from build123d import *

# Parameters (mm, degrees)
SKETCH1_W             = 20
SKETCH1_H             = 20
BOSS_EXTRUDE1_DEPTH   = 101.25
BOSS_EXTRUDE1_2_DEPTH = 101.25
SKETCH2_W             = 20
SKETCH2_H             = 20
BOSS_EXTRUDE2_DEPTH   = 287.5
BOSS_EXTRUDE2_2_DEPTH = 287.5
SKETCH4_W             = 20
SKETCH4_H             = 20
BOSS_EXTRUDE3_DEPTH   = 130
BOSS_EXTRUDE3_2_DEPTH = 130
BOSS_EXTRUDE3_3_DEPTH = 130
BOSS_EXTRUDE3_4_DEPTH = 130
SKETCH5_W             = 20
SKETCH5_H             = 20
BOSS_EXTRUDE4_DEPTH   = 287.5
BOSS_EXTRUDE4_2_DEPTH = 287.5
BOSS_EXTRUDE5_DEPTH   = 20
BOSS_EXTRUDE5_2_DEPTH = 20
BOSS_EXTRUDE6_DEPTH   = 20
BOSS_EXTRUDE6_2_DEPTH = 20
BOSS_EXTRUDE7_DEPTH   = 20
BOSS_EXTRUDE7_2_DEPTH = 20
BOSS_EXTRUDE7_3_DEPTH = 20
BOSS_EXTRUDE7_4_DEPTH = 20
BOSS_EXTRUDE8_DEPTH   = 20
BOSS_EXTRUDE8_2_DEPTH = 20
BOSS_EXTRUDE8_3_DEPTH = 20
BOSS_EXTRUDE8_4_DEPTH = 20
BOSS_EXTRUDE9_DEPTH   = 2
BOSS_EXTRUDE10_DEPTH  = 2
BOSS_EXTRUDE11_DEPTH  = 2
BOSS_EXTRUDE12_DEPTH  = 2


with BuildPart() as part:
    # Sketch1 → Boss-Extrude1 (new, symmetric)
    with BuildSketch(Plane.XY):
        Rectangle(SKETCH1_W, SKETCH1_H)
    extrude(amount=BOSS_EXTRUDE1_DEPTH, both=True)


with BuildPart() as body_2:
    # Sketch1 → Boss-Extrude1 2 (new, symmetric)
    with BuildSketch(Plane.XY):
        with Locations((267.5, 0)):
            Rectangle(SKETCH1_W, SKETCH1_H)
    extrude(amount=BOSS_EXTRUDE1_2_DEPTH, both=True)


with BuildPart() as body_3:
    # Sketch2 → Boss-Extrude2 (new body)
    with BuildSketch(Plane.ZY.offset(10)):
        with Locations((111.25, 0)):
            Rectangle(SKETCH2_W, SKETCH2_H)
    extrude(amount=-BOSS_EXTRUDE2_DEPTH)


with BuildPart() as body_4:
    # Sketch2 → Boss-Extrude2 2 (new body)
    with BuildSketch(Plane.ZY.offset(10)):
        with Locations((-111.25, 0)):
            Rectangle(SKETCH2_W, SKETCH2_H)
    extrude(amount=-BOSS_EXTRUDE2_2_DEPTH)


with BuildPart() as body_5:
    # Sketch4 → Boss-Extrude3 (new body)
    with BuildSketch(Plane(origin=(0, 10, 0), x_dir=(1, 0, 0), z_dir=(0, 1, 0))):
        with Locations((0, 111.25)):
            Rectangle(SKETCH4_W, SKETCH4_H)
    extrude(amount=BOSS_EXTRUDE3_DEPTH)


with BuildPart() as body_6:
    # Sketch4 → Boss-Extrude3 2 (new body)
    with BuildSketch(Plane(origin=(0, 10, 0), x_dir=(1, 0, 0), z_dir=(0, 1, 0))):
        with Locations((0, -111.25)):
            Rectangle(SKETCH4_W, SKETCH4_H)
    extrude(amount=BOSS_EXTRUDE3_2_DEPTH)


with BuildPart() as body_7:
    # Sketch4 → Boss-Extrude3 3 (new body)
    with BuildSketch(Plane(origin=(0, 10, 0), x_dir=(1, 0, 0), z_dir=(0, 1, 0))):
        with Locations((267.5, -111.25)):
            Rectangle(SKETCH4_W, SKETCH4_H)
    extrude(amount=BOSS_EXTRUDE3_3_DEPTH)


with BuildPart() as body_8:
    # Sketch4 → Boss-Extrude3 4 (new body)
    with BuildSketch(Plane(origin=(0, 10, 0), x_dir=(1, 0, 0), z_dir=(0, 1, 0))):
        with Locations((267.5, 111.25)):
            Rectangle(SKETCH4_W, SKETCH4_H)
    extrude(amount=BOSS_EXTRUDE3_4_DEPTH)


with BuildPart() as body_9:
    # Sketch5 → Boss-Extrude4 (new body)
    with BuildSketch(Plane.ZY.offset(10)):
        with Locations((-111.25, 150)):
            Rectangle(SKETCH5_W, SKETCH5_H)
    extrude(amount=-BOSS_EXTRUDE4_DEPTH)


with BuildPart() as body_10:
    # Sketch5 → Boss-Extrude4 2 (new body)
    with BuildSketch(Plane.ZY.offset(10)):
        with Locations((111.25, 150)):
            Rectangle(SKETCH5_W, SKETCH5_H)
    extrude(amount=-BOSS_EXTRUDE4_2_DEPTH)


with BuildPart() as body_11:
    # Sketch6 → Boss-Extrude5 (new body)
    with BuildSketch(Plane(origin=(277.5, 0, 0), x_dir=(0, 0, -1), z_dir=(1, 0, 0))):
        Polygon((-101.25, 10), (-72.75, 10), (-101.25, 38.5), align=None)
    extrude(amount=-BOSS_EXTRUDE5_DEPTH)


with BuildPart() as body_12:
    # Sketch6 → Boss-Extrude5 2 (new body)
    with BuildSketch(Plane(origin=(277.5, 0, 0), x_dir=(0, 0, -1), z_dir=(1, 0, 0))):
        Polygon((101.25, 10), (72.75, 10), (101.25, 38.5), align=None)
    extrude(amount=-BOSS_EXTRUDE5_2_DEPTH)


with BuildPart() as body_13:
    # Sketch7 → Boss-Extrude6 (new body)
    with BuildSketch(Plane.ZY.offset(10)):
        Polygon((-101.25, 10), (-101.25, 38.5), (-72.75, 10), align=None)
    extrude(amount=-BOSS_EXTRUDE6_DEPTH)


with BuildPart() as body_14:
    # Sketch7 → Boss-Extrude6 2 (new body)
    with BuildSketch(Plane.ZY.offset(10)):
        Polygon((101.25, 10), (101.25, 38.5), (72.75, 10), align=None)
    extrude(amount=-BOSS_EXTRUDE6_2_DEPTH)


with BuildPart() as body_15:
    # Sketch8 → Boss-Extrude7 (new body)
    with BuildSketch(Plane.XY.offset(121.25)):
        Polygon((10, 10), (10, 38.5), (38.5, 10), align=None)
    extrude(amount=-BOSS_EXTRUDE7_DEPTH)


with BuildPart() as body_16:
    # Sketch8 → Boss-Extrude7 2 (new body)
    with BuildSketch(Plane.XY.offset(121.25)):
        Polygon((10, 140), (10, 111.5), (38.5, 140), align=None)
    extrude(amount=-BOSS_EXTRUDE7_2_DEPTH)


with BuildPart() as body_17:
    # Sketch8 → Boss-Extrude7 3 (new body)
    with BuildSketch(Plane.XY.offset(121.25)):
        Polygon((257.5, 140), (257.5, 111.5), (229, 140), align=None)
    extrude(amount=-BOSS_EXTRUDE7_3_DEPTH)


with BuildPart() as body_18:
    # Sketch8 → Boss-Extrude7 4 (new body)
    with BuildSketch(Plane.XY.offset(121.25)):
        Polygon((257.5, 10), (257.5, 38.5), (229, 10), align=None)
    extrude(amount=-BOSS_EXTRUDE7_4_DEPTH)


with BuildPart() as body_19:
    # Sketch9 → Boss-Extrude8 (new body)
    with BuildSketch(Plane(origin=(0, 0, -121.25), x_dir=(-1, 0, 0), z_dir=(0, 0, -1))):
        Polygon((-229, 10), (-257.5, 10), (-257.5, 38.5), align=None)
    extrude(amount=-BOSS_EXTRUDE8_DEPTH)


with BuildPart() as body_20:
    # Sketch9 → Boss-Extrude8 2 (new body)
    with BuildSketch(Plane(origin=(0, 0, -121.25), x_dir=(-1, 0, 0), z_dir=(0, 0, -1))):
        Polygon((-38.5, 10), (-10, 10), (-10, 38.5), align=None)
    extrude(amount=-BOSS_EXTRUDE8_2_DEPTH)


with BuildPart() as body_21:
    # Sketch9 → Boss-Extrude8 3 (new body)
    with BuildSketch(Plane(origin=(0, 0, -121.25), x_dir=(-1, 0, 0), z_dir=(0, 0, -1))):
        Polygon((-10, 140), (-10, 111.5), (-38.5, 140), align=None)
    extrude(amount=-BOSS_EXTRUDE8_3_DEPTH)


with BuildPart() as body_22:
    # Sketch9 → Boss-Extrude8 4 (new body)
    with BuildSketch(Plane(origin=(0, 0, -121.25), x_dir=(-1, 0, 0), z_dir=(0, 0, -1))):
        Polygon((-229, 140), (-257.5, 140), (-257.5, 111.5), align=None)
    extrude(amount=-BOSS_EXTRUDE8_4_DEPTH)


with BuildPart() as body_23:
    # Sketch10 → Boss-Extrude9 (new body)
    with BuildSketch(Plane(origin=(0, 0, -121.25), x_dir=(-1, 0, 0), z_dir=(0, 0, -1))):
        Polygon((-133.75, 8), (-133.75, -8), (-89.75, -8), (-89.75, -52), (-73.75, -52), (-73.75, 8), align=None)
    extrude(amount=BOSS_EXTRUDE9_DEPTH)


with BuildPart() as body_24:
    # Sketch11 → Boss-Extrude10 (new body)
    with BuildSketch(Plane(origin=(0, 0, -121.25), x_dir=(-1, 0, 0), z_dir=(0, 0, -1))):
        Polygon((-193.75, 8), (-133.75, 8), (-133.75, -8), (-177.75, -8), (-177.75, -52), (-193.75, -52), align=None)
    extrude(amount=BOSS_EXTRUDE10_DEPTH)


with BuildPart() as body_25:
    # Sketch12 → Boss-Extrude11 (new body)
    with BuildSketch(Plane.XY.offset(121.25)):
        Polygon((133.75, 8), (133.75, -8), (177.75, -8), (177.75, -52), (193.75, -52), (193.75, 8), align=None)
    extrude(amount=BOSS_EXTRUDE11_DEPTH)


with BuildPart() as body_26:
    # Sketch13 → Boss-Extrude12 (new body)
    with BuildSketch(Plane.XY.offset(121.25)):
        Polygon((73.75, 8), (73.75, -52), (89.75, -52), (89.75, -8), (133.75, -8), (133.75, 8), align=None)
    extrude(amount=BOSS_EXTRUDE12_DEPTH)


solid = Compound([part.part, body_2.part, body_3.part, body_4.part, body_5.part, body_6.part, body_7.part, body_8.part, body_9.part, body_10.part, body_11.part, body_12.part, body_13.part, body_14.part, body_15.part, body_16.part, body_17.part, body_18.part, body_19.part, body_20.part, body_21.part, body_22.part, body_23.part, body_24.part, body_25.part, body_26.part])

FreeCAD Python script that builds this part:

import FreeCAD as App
import Part
import Sketcher

doc = App.newDocument("Part")
body = doc.addObject("PartDesign::Body", "Body")

# Sketch on XY plane
sketch1 = body.newObject("Sketcher::SketchObject", "Sketch")
sketch1.AttachmentSupport = (doc.getObject("XY_Plane"), [""])
sketch1.MapMode = "FlatFace"
sketch1.addGeometry([
    Part.LineSegment(App.Vector(-10, 10, 0), App.Vector(-10, -10, 0)),
    Part.LineSegment(App.Vector(-10, -10, 0), App.Vector(10, -10, 0)),
    Part.LineSegment(App.Vector(10, -10, 0), App.Vector(10, 10, 0)),
    Part.LineSegment(App.Vector(10, 10, 0), App.Vector(-10, 10, 0)),
], False)
sketch1.addConstraint([
    Sketcher.Constraint("Coincident", 0, 2, 1, 1),
    Sketcher.Constraint("Coincident", 1, 2, 2, 1),
    Sketcher.Constraint("Coincident", 2, 2, 3, 1),
    Sketcher.Constraint("Coincident", 3, 2, 0, 1),
    Sketcher.Constraint("Vertical", 0),
    Sketcher.Constraint("Horizontal", 1),
    Sketcher.Constraint("Vertical", 2),
    Sketcher.Constraint("Horizontal", 3),
    Sketcher.Constraint("Symmetric", 0, 2, 2, 2, -1, 1),
    Sketcher.Constraint("Equal", 3, 0),
    Sketcher.Constraint("DistanceX", 1, 1, 1, 2, 20.0),
])
pad1 = body.newObject("PartDesign::Pad", "Pad")
pad1.Profile = sketch1
pad1.Length = 202.5
pad1.Midplane = True
body2 = doc.addObject("PartDesign::Body", "Body001")

# Sketch on XY plane
sketch2 = body2.newObject("Sketcher::SketchObject", "Sketch001")
sketch2.AttachmentSupport = (doc.getObject("XY_Plane001"), [""])
sketch2.MapMode = "FlatFace"
sketch2.addGeometry([
    Part.LineSegment(App.Vector(258, 10, 0), App.Vector(258, -10, 0)),
    Part.LineSegment(App.Vector(258, -10, 0), App.Vector(278, -10, 0)),
    Part.LineSegment(App.Vector(278, -10, 0), App.Vector(278, 10, 0)),
    Part.LineSegment(App.Vector(278, 10, 0), App.Vector(258, 10, 0)),
], False)
sketch2.addConstraint([
    Sketcher.Constraint("Coincident", 0, 2, 1, 1),
    Sketcher.Constraint("Coincident", 1, 2, 2, 1),
    Sketcher.Constraint("Coincident", 2, 2, 3, 1),
    Sketcher.Constraint("Coincident", 3, 2, 0, 1),
    Sketcher.Constraint("Vertical", 0),
    Sketcher.Constraint("Horizontal", 1),
    Sketcher.Constraint("Vertical", 2),
    Sketcher.Constraint("Horizontal", 3),
    Sketcher.Constraint("Equal", 3, 0),
    Sketcher.Constraint("DistanceX", 1, 1, 1, 2, 20.0),
    Sketcher.Constraint("DistanceY", 0, 2, -1, 1, 10.0),
    Sketcher.Constraint("DistanceX", -1, 1, 0, 2, 257.5),
])
pad2 = body2.newObject("PartDesign::Pad", "Pad001")
pad2.Profile = sketch2
pad2.Length = 202.5
pad2.Midplane = True
body3 = doc.addObject("PartDesign::Body", "Body002")

# Sketch on YZ plane
sketch3 = body3.newObject("Sketcher::SketchObject", "Sketch002")
sketch3.AttachmentSupport = (doc.getObject("YZ_Plane002"), [""])
sketch3.MapMode = "FlatFace"
sketch3.AttachmentOffset = App.Placement(App.Vector(0, 0, -10), App.Rotation())
sketch3.addGeometry([
    Part.LineSegment(App.Vector(10, 101, 0), App.Vector(-10, 101, 0)),
    Part.LineSegment(App.Vector(-10, 101, 0), App.Vector(-10, 121, 0)),
    Part.LineSegment(App.Vector(-10, 121, 0), App.Vector(10, 121, 0)),
    Part.LineSegment(App.Vector(10, 121, 0), App.Vector(10, 101, 0)),
], False)
sketch3.addConstraint([
    Sketcher.Constraint("Coincident", 0, 2, 1, 1),
    Sketcher.Constraint("Coincident", 1, 2, 2, 1),
    Sketcher.Constraint("Coincident", 2, 2, 3, 1),
    Sketcher.Constraint("Coincident", 3, 2, 0, 1),
    Sketcher.Constraint("Horizontal", 0),
    Sketcher.Constraint("Vertical", 1),
    Sketcher.Constraint("Horizontal", 2),
    Sketcher.Constraint("Vertical", 3),
    Sketcher.Constraint("Equal", 2, 1),
    Sketcher.Constraint("DistanceX", 0, 2, 0, 1, 20.0),
    Sketcher.Constraint("DistanceX", 0, 2, -1, 1, 10.0),
    Sketcher.Constraint("DistanceY", -1, 1, 0, 2, 101.25),
])
pad3 = body3.newObject("PartDesign::Pad", "Pad002")
pad3.Profile = sketch3
pad3.Length = 287.5
body4 = doc.addObject("PartDesign::Body", "Body003")

# Sketch on YZ plane
sketch4 = body4.newObject("Sketcher::SketchObject", "Sketch003")
sketch4.AttachmentSupport = (doc.getObject("YZ_Plane003"), [""])
sketch4.MapMode = "FlatFace"
sketch4.AttachmentOffset = App.Placement(App.Vector(0, 0, -10), App.Rotation())
sketch4.addGeometry([
    Part.LineSegment(App.Vector(10, -121, 0), App.Vector(-10, -121, 0)),
    Part.LineSegment(App.Vector(-10, -121, 0), App.Vector(-10, -101, 0)),
    Part.LineSegment(App.Vector(-10, -101, 0), App.Vector(10, -101, 0)),
    Part.LineSegment(App.Vector(10, -101, 0), App.Vector(10, -121, 0)),
], False)
sketch4.addConstraint([
    Sketcher.Constraint("Coincident", 0, 2, 1, 1),
    Sketcher.Constraint("Coincident", 1, 2, 2, 1),
    Sketcher.Constraint("Coincident", 2, 2, 3, 1),
    Sketcher.Constraint("Coincident", 3, 2, 0, 1),
    Sketcher.Constraint("Horizontal", 0),
    Sketcher.Constraint("Vertical", 1),
    Sketcher.Constraint("Horizontal", 2),
    Sketcher.Constraint("Vertical", 3),
    Sketcher.Constraint("Equal", 2, 1),
    Sketcher.Constraint("DistanceX", 0, 2, 0, 1, 20.0),
    Sketcher.Constraint("DistanceX", 0, 2, -1, 1, 10.0),
    Sketcher.Constraint("DistanceY", 0, 2, -1, 1, 121.25),
])
pad4 = body4.newObject("PartDesign::Pad", "Pad003")
pad4.Profile = sketch4
pad4.Length = 287.5
body5 = doc.addObject("PartDesign::Body", "Body004")

# Sketch on XZ plane
sketch5 = body5.newObject("Sketcher::SketchObject", "Sketch004")
sketch5.AttachmentSupport = (doc.getObject("XZ_Plane004"), [""])
sketch5.MapMode = "FlatFace"
sketch5.AttachmentOffset = App.Placement(App.Vector(0, 0, -10), App.Rotation())
sketch5.addGeometry([
    Part.LineSegment(App.Vector(-10, -121, 0), App.Vector(-10, -101, 0)),
    Part.LineSegment(App.Vector(-10, -101, 0), App.Vector(10, -101, 0)),
    Part.LineSegment(App.Vector(10, -101, 0), App.Vector(10, -121, 0)),
    Part.LineSegment(App.Vector(10, -121, 0), App.Vector(-10, -121, 0)),
], False)
sketch5.addConstraint([
    Sketcher.Constraint("Coincident", 0, 2, 1, 1),
    Sketcher.Constraint("Coincident", 1, 2, 2, 1),
    Sketcher.Constraint("Coincident", 2, 2, 3, 1),
    Sketcher.Constraint("Coincident", 3, 2, 0, 1),
    Sketcher.Constraint("Vertical", 0),
    Sketcher.Constraint("Horizontal", 1),
    Sketcher.Constraint("Vertical", 2),
    Sketcher.Constraint("Horizontal", 3),
    Sketcher.Constraint("Equal", 3, 0),
    Sketcher.Constraint("DistanceX", 1, 1, 1, 2, 20.0),
    Sketcher.Constraint("DistanceX", 0, 2, -1, 1, 10.0),
    Sketcher.Constraint("DistanceY", 0, 2, -1, 1, 101.25),
])
pad5 = body5.newObject("PartDesign::Pad", "Pad004")
pad5.Profile = sketch5
pad5.Length = 130
pad5.Reversed = True
body6 = doc.addObject("PartDesign::Body", "Body005")

# Sketch on XZ plane
sketch6 = body6.newObject("Sketcher::SketchObject", "Sketch005")
sketch6.AttachmentSupport = (doc.getObject("XZ_Plane005"), [""])
sketch6.MapMode = "FlatFace"
sketch6.AttachmentOffset = App.Placement(App.Vector(0, 0, -10), App.Rotation())
sketch6.addGeometry([
    Part.LineSegment(App.Vector(-10, 101, 0), App.Vector(-10, 121, 0)),
    Part.LineSegment(App.Vector(-10, 121, 0), App.Vector(10, 121, 0)),
    Part.LineSegment(App.Vector(10, 121, 0), App.Vector(10, 101, 0)),
    Part.LineSegment(App.Vector(10, 101, 0), App.Vector(-10, 101, 0)),
], False)
sketch6.addConstraint([
    Sketcher.Constraint("Coincident", 0, 2, 1, 1),
    Sketcher.Constraint("Coincident", 1, 2, 2, 1),
    Sketcher.Constraint("Coincident", 2, 2, 3, 1),
    Sketcher.Constraint("Coincident", 3, 2, 0, 1),
    Sketcher.Constraint("Vertical", 0),
    Sketcher.Constraint("Horizontal", 1),
    Sketcher.Constraint("Vertical", 2),
    Sketcher.Constraint("Horizontal", 3),
    Sketcher.Constraint("Equal", 3, 0),
    Sketcher.Constraint("DistanceX", 1, 1, 1, 2, 20.0),
    Sketcher.Constraint("DistanceX", 0, 2, -1, 1, 10.0),
    Sketcher.Constraint("DistanceY", -1, 1, 0, 2, 121.25),
])
pad6 = body6.newObject("PartDesign::Pad", "Pad005")
pad6.Profile = sketch6
pad6.Length = 130
pad6.Reversed = True
body7 = doc.addObject("PartDesign::Body", "Body006")

# Sketch on XZ plane
sketch7 = body7.newObject("Sketcher::SketchObject", "Sketch006")
sketch7.AttachmentSupport = (doc.getObject("XZ_Plane006"), [""])
sketch7.MapMode = "FlatFace"
sketch7.AttachmentOffset = App.Placement(App.Vector(0, 0, -10), App.Rotation())
sketch7.addGeometry([
    Part.LineSegment(App.Vector(258, 101, 0), App.Vector(258, 121, 0)),
    Part.LineSegment(App.Vector(258, 121, 0), App.Vector(278, 121, 0)),
    Part.LineSegment(App.Vector(278, 121, 0), App.Vector(278, 101, 0)),
    Part.LineSegment(App.Vector(278, 101, 0), App.Vector(258, 101, 0)),
], False)
sketch7.addConstraint([
    Sketcher.Constraint("Coincident", 0, 2, 1, 1),
    Sketcher.Constraint("Coincident", 1, 2, 2, 1),
    Sketcher.Constraint("Coincident", 2, 2, 3, 1),
    Sketcher.Constraint("Coincident", 3, 2, 0, 1),
    Sketcher.Constraint("Vertical", 0),
    Sketcher.Constraint("Horizontal", 1),
    Sketcher.Constraint("Vertical", 2),
    Sketcher.Constraint("Horizontal", 3),
    Sketcher.Constraint("Equal", 3, 0),
    Sketcher.Constraint("DistanceX", 1, 1, 1, 2, 20.0),
    Sketcher.Constraint("DistanceX", -1, 1, 0, 2, 257.5),
    Sketcher.Constraint("DistanceY", -1, 1, 0, 2, 121.25),
])
pad7 = body7.newObject("PartDesign::Pad", "Pad006")
pad7.Profile = sketch7
pad7.Length = 130
pad7.Reversed = True
body8 = doc.addObject("PartDesign::Body", "Body007")

# Sketch on XZ plane
sketch8 = body8.newObject("Sketcher::SketchObject", "Sketch007")
sketch8.AttachmentSupport = (doc.getObject("XZ_Plane007"), [""])
sketch8.MapMode = "FlatFace"
sketch8.AttachmentOffset = App.Placement(App.Vector(0, 0, -10), App.Rotation())
sketch8.addGeometry([
    Part.LineSegment(App.Vector(258, -121, 0), App.Vector(258, -101, 0)),
    Part.LineSegment(App.Vector(258, -101, 0), App.Vector(278, -101, 0)),
    Part.LineSegment(App.Vector(278, -101, 0), App.Vector(278, -121, 0)),
    Part.LineSegment(App.Vector(278, -121, 0), App.Vector(258, -121, 0)),
], False)
sketch8.addConstraint([
    Sketcher.Constraint("Coincident", 0, 2, 1, 1),
    Sketcher.Constraint("Coincident", 1, 2, 2, 1),
    Sketcher.Constraint("Coincident", 2, 2, 3, 1),
    Sketcher.Constraint("Coincident", 3, 2, 0, 1),
    Sketcher.Constraint("Vertical", 0),
    Sketcher.Constraint("Horizontal", 1),
    Sketcher.Constraint("Vertical", 2),
    Sketcher.Constraint("Horizontal", 3),
    Sketcher.Constraint("Equal", 3, 0),
    Sketcher.Constraint("DistanceX", 1, 1, 1, 2, 20.0),
    Sketcher.Constraint("DistanceX", -1, 1, 0, 2, 257.5),
    Sketcher.Constraint("DistanceY", 0, 2, -1, 1, 101.25),
])
pad8 = body8.newObject("PartDesign::Pad", "Pad007")
pad8.Profile = sketch8
pad8.Length = 130
pad8.Reversed = True
body9 = doc.addObject("PartDesign::Body", "Body008")

# Sketch on YZ plane
sketch9 = body9.newObject("Sketcher::SketchObject", "Sketch008")
sketch9.AttachmentSupport = (doc.getObject("YZ_Plane008"), [""])
sketch9.MapMode = "FlatFace"
sketch9.AttachmentOffset = App.Placement(App.Vector(0, 0, -10), App.Rotation())
sketch9.addGeometry([
    Part.LineSegment(App.Vector(160, -121, 0), App.Vector(140, -121, 0)),
    Part.LineSegment(App.Vector(140, -121, 0), App.Vector(140, -101, 0)),
    Part.LineSegment(App.Vector(140, -101, 0), App.Vector(160, -101, 0)),
    Part.LineSegment(App.Vector(160, -101, 0), App.Vector(160, -121, 0)),
], False)
sketch9.addConstraint([
    Sketcher.Constraint("Coincident", 0, 2, 1, 1),
    Sketcher.Constraint("Coincident", 1, 2, 2, 1),
    Sketcher.Constraint("Coincident", 2, 2, 3, 1),
    Sketcher.Constraint("Coincident", 3, 2, 0, 1),
    Sketcher.Constraint("Horizontal", 0),
    Sketcher.Constraint("Vertical", 1),
    Sketcher.Constraint("Horizontal", 2),
    Sketcher.Constraint("Vertical", 3),
    Sketcher.Constraint("Equal", 2, 1),
    Sketcher.Constraint("DistanceX", 0, 2, 0, 1, 20.0),
    Sketcher.Constraint("DistanceX", -1, 1, 0, 2, 140.0),
    Sketcher.Constraint("DistanceY", 0, 2, -1, 1, 121.25),
])
pad9 = body9.newObject("PartDesign::Pad", "Pad008")
pad9.Profile = sketch9
pad9.Length = 287.5
body10 = doc.addObject("PartDesign::Body", "Body009")

# Sketch on YZ plane
sketch10 = body10.newObject("Sketcher::SketchObject", "Sketch009")
sketch10.AttachmentSupport = (doc.getObject("YZ_Plane009"), [""])
sketch10.MapMode = "FlatFace"
sketch10.AttachmentOffset = App.Placement(App.Vector(0, 0, -10), App.Rotation())
sketch10.addGeometry([
    Part.LineSegment(App.Vector(160, 101, 0), App.Vector(140, 101, 0)),
    Part.LineSegment(App.Vector(140, 101, 0), App.Vector(140, 121, 0)),
    Part.LineSegment(App.Vector(140, 121, 0), App.Vector(160, 121, 0)),
    Part.LineSegment(App.Vector(160, 121, 0), App.Vector(160, 101, 0)),
], False)
sketch10.addConstraint([
    Sketcher.Constraint("Coincident", 0, 2, 1, 1),
    Sketcher.Constraint("Coincident", 1, 2, 2, 1),
    Sketcher.Constraint("Coincident", 2, 2, 3, 1),
    Sketcher.Constraint("Coincident", 3, 2, 0, 1),
    Sketcher.Constraint("Horizontal", 0),
    Sketcher.Constraint("Vertical", 1),
    Sketcher.Constraint("Horizontal", 2),
    Sketcher.Constraint("Vertical", 3),
    Sketcher.Constraint("Equal", 2, 1),
    Sketcher.Constraint("DistanceX", 0, 2, 0, 1, 20.0),
    Sketcher.Constraint("DistanceX", -1, 1, 0, 2, 140.0),
    Sketcher.Constraint("DistanceY", -1, 1, 0, 2, 101.25),
])
pad10 = body10.newObject("PartDesign::Pad", "Pad009")
pad10.Profile = sketch10
pad10.Length = 287.5
body11 = doc.addObject("PartDesign::Body", "Body010")

# Sketch on YZ plane
sketch11 = body11.newObject("Sketcher::SketchObject", "Sketch010")
sketch11.AttachmentSupport = (doc.getObject("YZ_Plane010"), [""])
sketch11.MapMode = "FlatFace"
sketch11.AttachmentOffset = App.Placement(App.Vector(0, 0, 277.5), App.Rotation())
sketch11.addGeometry([
    Part.LineSegment(App.Vector(10, 101, 0), App.Vector(10, 73, 0)),
    Part.LineSegment(App.Vector(10, 73, 0), App.Vector(38, 101, 0)),
    Part.LineSegment(App.Vector(38, 101, 0), App.Vector(10, 101, 0)),
], False)
sketch11.addConstraint([
    Sketcher.Constraint("Coincident", 0, 2, 1, 1),
    Sketcher.Constraint("Coincident", 1, 2, 2, 1),
    Sketcher.Constraint("Coincident", 2, 2, 0, 1),
    Sketcher.Constraint("Vertical", 0),
    Sketcher.Constraint("Horizontal", 2),
    Sketcher.Constraint("Equal", 2, 0),
    Sketcher.Constraint("DistanceX", 2, 2, 2, 1, 28.5),
    Sketcher.Constraint("DistanceX", -1, 1, 0, 2, 10.0),
    Sketcher.Constraint("DistanceY", -1, 1, 0, 2, 72.75),
])
pad11 = body11.newObject("PartDesign::Pad", "Pad010")
pad11.Profile = sketch11
pad11.Length = 20
pad11.Reversed = True
body12 = doc.addObject("PartDesign::Body", "Body011")

# Sketch on YZ plane
sketch12 = body12.newObject("Sketcher::SketchObject", "Sketch011")
sketch12.AttachmentSupport = (doc.getObject("YZ_Plane011"), [""])
sketch12.MapMode = "FlatFace"
sketch12.AttachmentOffset = App.Placement(App.Vector(0, 0, 277.5), App.Rotation())
sketch12.addGeometry([
    Part.LineSegment(App.Vector(10, -73, 0), App.Vector(10, -101, 0)),
    Part.LineSegment(App.Vector(10, -101, 0), App.Vector(38, -101, 0)),
    Part.LineSegment(App.Vector(38, -101, 0), App.Vector(10, -73, 0)),
], False)
sketch12.addConstraint([
    Sketcher.Constraint("Coincident", 0, 2, 1, 1),
    Sketcher.Constraint("Coincident", 1, 2, 2, 1),
    Sketcher.Constraint("Coincident", 2, 2, 0, 1),
    Sketcher.Constraint("Vertical", 0),
    Sketcher.Constraint("Horizontal", 1),
    Sketcher.Constraint("Equal", 1, 0),
    Sketcher.Constraint("DistanceX", 1, 1, 1, 2, 28.5),
    Sketcher.Constraint("DistanceX", -1, 1, 0, 2, 10.0),
    Sketcher.Constraint("DistanceY", 0, 2, -1, 1, 101.25),
])
pad12 = body12.newObject("PartDesign::Pad", "Pad011")
pad12.Profile = sketch12
pad12.Length = 20
pad12.Reversed = True
body13 = doc.addObject("PartDesign::Body", "Body012")

# Sketch on YZ plane
sketch13 = body13.newObject("Sketcher::SketchObject", "Sketch012")
sketch13.AttachmentSupport = (doc.getObject("YZ_Plane012"), [""])
sketch13.MapMode = "FlatFace"
sketch13.AttachmentOffset = App.Placement(App.Vector(0, 0, -10), App.Rotation())
sketch13.addGeometry([
    Part.LineSegment(App.Vector(38, -101, 0), App.Vector(10, -101, 0)),
    Part.LineSegment(App.Vector(10, -101, 0), App.Vector(10, -73, 0)),
    Part.LineSegment(App.Vector(10, -73, 0), App.Vector(38, -101, 0)),
], False)
sketch13.addConstraint([
    Sketcher.Constraint("Coincident", 0, 2, 1, 1),
    Sketcher.Constraint("Coincident", 1, 2, 2, 1),
    Sketcher.Constraint("Coincident", 2, 2, 0, 1),
    Sketcher.Constraint("Horizontal", 0),
    Sketcher.Constraint("Vertical", 1),
    Sketcher.Constraint("Equal", 0, 1),
    Sketcher.Constraint("DistanceX", 0, 2, 0, 1, 28.5),
    Sketcher.Constraint("DistanceX", -1, 1, 0, 2, 10.0),
    Sketcher.Constraint("DistanceY", 0, 2, -1, 1, 101.25),
])
pad13 = body13.newObject("PartDesign::Pad", "Pad012")
pad13.Profile = sketch13
pad13.Length = 20
body14 = doc.addObject("PartDesign::Body", "Body013")

# Sketch on YZ plane
sketch14 = body14.newObject("Sketcher::SketchObject", "Sketch013")
sketch14.AttachmentSupport = (doc.getObject("YZ_Plane013"), [""])
sketch14.MapMode = "FlatFace"
sketch14.AttachmentOffset = App.Placement(App.Vector(0, 0, -10), App.Rotation())
sketch14.addGeometry([
    Part.LineSegment(App.Vector(10, 101, 0), App.Vector(38, 101, 0)),
    Part.LineSegment(App.Vector(38, 101, 0), App.Vector(10, 73, 0)),
    Part.LineSegment(App.Vector(10, 73, 0), App.Vector(10, 101, 0)),
], False)
sketch14.addConstraint([
    Sketcher.Constraint("Coincident", 0, 2, 1, 1),
    Sketcher.Constraint("Coincident", 1, 2, 2, 1),
    Sketcher.Constraint("Coincident", 2, 2, 0, 1),
    Sketcher.Constraint("Horizontal", 0),
    Sketcher.Constraint("Vertical", 2),
    Sketcher.Constraint("Equal", 0, 2),
    Sketcher.Constraint("DistanceX", 0, 1, 0, 2, 28.5),
    Sketcher.Constraint("DistanceX", -1, 1, 1, 2, 10.0),
    Sketcher.Constraint("DistanceY", -1, 1, 0, 2, 101.25),
])
pad14 = body14.newObject("PartDesign::Pad", "Pad013")
pad14.Profile = sketch14
pad14.Length = 20
body15 = doc.addObject("PartDesign::Body", "Body014")

# Sketch on XY plane
sketch15 = body15.newObject("Sketcher::SketchObject", "Sketch014")
sketch15.AttachmentSupport = (doc.getObject("XY_Plane014"), [""])
sketch15.MapMode = "FlatFace"
sketch15.AttachmentOffset = App.Placement(App.Vector(0, 0, 121.25), App.Rotation())
sketch15.addGeometry([
    Part.LineSegment(App.Vector(10, 38, 0), App.Vector(10, 10, 0)),
    Part.LineSegment(App.Vector(10, 10, 0), App.Vector(38, 10, 0)),
    Part.LineSegment(App.Vector(38, 10, 0), App.Vector(10, 38, 0)),
], False)
sketch15.addConstraint([
    Sketcher.Constraint("Coincident", 0, 2, 1, 1),
    Sketcher.Constraint("Coincident", 1, 2, 2, 1),
    Sketcher.Constraint("Coincident", 2, 2, 0, 1),
    Sketcher.Constraint("Vertical", 0),
    Sketcher.Constraint("Horizontal", 1),
    Sketcher.Constraint("Equal", 1, 0),
    Sketcher.Constraint("DistanceX", 1, 1, 1, 2, 28.5),
    Sketcher.Constraint("DistanceX", -1, 1, 0, 2, 10.0),
    Sketcher.Constraint("DistanceY", -1, 1, 0, 2, 10.0),
])
pad15 = body15.newObject("PartDesign::Pad", "Pad014")
pad15.Profile = sketch15
pad15.Length = 20
pad15.Reversed = True
body16 = doc.addObject("PartDesign::Body", "Body015")

# Sketch on XY plane
sketch16 = body16.newObject("Sketcher::SketchObject", "Sketch015")
sketch16.AttachmentSupport = (doc.getObject("XY_Plane015"), [""])
sketch16.MapMode = "FlatFace"
sketch16.AttachmentOffset = App.Placement(App.Vector(0, 0, 121.25), App.Rotation())
sketch16.addGeometry([
    Part.LineSegment(App.Vector(10, 140, 0), App.Vector(10, 112, 0)),
    Part.LineSegment(App.Vector(10, 112, 0), App.Vector(38, 140, 0)),
    Part.LineSegment(App.Vector(38, 140, 0), App.Vector(10, 140, 0)),
], False)
sketch16.addConstraint([
    Sketcher.Constraint("Coincident", 0, 2, 1, 1),
    Sketcher.Constraint("Coincident", 1, 2, 2, 1),
    Sketcher.Constraint("Coincident", 2, 2, 0, 1),
    Sketcher.Constraint("Vertical", 0),
    Sketcher.Constraint("Horizontal", 2),
    Sketcher.Constraint("Equal", 2, 0),
    Sketcher.Constraint("DistanceX", 2, 2, 2, 1, 28.5),
    Sketcher.Constraint("DistanceX", -1, 1, 0, 2, 10.0),
    Sketcher.Constraint("DistanceY", -1, 1, 1, 2, 140.0),
])
pad16 = body16.newObject("PartDesign::Pad", "Pad015")
pad16.Profile = sketch16
pad16.Length = 20
pad16.Reversed = True
body17 = doc.addObject("PartDesign::Body", "Body016")

# Sketch on XY plane
sketch17 = body17.newObject("Sketcher::SketchObject", "Sketch016")
sketch17.AttachmentSupport = (doc.getObject("XY_Plane016"), [""])
sketch17.MapMode = "FlatFace"
sketch17.AttachmentOffset = App.Placement(App.Vector(0, 0, 121.25), App.Rotation())
sketch17.addGeometry([
    Part.LineSegment(App.Vector(258, 112, 0), App.Vector(258, 140, 0)),
    Part.LineSegment(App.Vector(258, 140, 0), App.Vector(229, 140, 0)),
    Part.LineSegment(App.Vector(229, 140, 0), App.Vector(258, 112, 0)),
], False)
sketch17.addConstraint([
    Sketcher.Constraint("Coincident", 0, 2, 1, 1),
    Sketcher.Constraint("Coincident", 1, 2, 2, 1),
    Sketcher.Constraint("Coincident", 2, 2, 0, 1),
    Sketcher.Constraint("Vertical", 0),
    Sketcher.Constraint("Horizontal", 1),
    Sketcher.Constraint("Equal", 1, 0),
    Sketcher.Constraint("DistanceX", 1, 2, 1, 1, 28.5),
    Sketcher.Constraint("DistanceY", -1, 1, 0, 2, 140.0),
    Sketcher.Constraint("DistanceX", -1, 1, 1, 2, 229.0),
])
pad17 = body17.newObject("PartDesign::Pad", "Pad016")
pad17.Profile = sketch17
pad17.Length = 20
pad17.Reversed = True
body18 = doc.addObject("PartDesign::Body", "Body017")

# Sketch on XY plane
sketch18 = body18.newObject("Sketcher::SketchObject", "Sketch017")
sketch18.AttachmentSupport = (doc.getObject("XY_Plane017"), [""])
sketch18.MapMode = "FlatFace"
sketch18.AttachmentOffset = App.Placement(App.Vector(0, 0, 121.25), App.Rotation())
sketch18.addGeometry([
    Part.LineSegment(App.Vector(258, 10, 0), App.Vector(258, 38, 0)),
    Part.LineSegment(App.Vector(258, 38, 0), App.Vector(229, 10, 0)),
    Part.LineSegment(App.Vector(229, 10, 0), App.Vector(258, 10, 0)),
], False)
sketch18.addConstraint([
    Sketcher.Constraint("Coincident", 0, 2, 1, 1),
    Sketcher.Constraint("Coincident", 1, 2, 2, 1),
    Sketcher.Constraint("Coincident", 2, 2, 0, 1),
    Sketcher.Constraint("Vertical", 0),
    Sketcher.Constraint("Horizontal", 2),
    Sketcher.Constraint("Equal", 2, 0),
    Sketcher.Constraint("DistanceX", 2, 1, 2, 2, 28.5),
    Sketcher.Constraint("DistanceX", -1, 1, 1, 2, 229.0),
    Sketcher.Constraint("DistanceY", -1, 1, 1, 2, 10.0),
])
pad18 = body18.newObject("PartDesign::Pad", "Pad017")
pad18.Profile = sketch18
pad18.Length = 20
pad18.Reversed = True
body19 = doc.addObject("PartDesign::Body", "Body018")

# Sketch on XY plane
sketch19 = body19.newObject("Sketcher::SketchObject", "Sketch018")
sketch19.AttachmentSupport = (doc.getObject("XY_Plane018"), [""])
sketch19.MapMode = "FlatFace"
sketch19.AttachmentOffset = App.Placement(App.Vector(0, 0, -121.25), App.Rotation())
sketch19.addGeometry([
    Part.LineSegment(App.Vector(258, 10, 0), App.Vector(229, 10, 0)),
    Part.LineSegment(App.Vector(229, 10, 0), App.Vector(258, 38, 0)),
    Part.LineSegment(App.Vector(258, 38, 0), App.Vector(258, 10, 0)),
], False)
sketch19.addConstraint([
    Sketcher.Constraint("Coincident", 0, 2, 1, 1),
    Sketcher.Constraint("Coincident", 1, 2, 2, 1),
    Sketcher.Constraint("Coincident", 2, 2, 0, 1),
    Sketcher.Constraint("Horizontal", 0),
    Sketcher.Constraint("Vertical", 2),
    Sketcher.Constraint("Equal", 0, 2),
    Sketcher.Constraint("DistanceX", 0, 2, 0, 1, 28.5),
    Sketcher.Constraint("DistanceX", -1, 1, 0, 2, 229.0),
    Sketcher.Constraint("DistanceY", -1, 1, 0, 2, 10.0),
])
pad19 = body19.newObject("PartDesign::Pad", "Pad018")
pad19.Profile = sketch19
pad19.Length = 20
body20 = doc.addObject("PartDesign::Body", "Body019")

# Sketch on XY plane
sketch20 = body20.newObject("Sketcher::SketchObject", "Sketch019")
sketch20.AttachmentSupport = (doc.getObject("XY_Plane019"), [""])
sketch20.MapMode = "FlatFace"
sketch20.AttachmentOffset = App.Placement(App.Vector(0, 0, -121.25), App.Rotation())
sketch20.addGeometry([
    Part.LineSegment(App.Vector(38, 10, 0), App.Vector(10, 10, 0)),
    Part.LineSegment(App.Vector(10, 10, 0), App.Vector(10, 38, 0)),
    Part.LineSegment(App.Vector(10, 38, 0), App.Vector(38, 10, 0)),
], False)
sketch20.addConstraint([
    Sketcher.Constraint("Coincident", 0, 2, 1, 1),
    Sketcher.Constraint("Coincident", 1, 2, 2, 1),
    Sketcher.Constraint("Coincident", 2, 2, 0, 1),
    Sketcher.Constraint("Horizontal", 0),
    Sketcher.Constraint("Vertical", 1),
    Sketcher.Constraint("Equal", 0, 1),
    Sketcher.Constraint("DistanceX", 0, 2, 0, 1, 28.5),
    Sketcher.Constraint("DistanceX", -1, 1, 0, 2, 10.0),
    Sketcher.Constraint("DistanceY", -1, 1, 0, 2, 10.0),
])
pad20 = body20.newObject("PartDesign::Pad", "Pad019")
pad20.Profile = sketch20
pad20.Length = 20
body21 = doc.addObject("PartDesign::Body", "Body020")

# Sketch on XY plane
sketch21 = body21.newObject("Sketcher::SketchObject", "Sketch020")
sketch21.AttachmentSupport = (doc.getObject("XY_Plane020"), [""])
sketch21.MapMode = "FlatFace"
sketch21.AttachmentOffset = App.Placement(App.Vector(0, 0, -121.25), App.Rotation())
sketch21.addGeometry([
    Part.LineSegment(App.Vector(10, 112, 0), App.Vector(10, 140, 0)),
    Part.LineSegment(App.Vector(10, 140, 0), App.Vector(38, 140, 0)),
    Part.LineSegment(App.Vector(38, 140, 0), App.Vector(10, 112, 0)),
], False)
sketch21.addConstraint([
    Sketcher.Constraint("Coincident", 0, 2, 1, 1),
    Sketcher.Constraint("Coincident", 1, 2, 2, 1),
    Sketcher.Constraint("Coincident", 2, 2, 0, 1),
    Sketcher.Constraint("Vertical", 0),
    Sketcher.Constraint("Horizontal", 1),
    Sketcher.Constraint("Equal", 1, 0),
    Sketcher.Constraint("DistanceX", 1, 1, 1, 2, 28.5),
    Sketcher.Constraint("DistanceX", -1, 1, 0, 2, 10.0),
    Sketcher.Constraint("DistanceY", -1, 1, 0, 2, 140.0),
])
pad21 = body21.newObject("PartDesign::Pad", "Pad020")
pad21.Profile = sketch21
pad21.Length = 20
body22 = doc.addObject("PartDesign::Body", "Body021")

# Sketch on XY plane
sketch22 = body22.newObject("Sketcher::SketchObject", "Sketch021")
sketch22.AttachmentSupport = (doc.getObject("XY_Plane021"), [""])
sketch22.MapMode = "FlatFace"
sketch22.AttachmentOffset = App.Placement(App.Vector(0, 0, -121.25), App.Rotation())
sketch22.addGeometry([
    Part.LineSegment(App.Vector(229, 140, 0), App.Vector(258, 140, 0)),
    Part.LineSegment(App.Vector(258, 140, 0), App.Vector(258, 112, 0)),
    Part.LineSegment(App.Vector(258, 112, 0), App.Vector(229, 140, 0)),
], False)
sketch22.addConstraint([
    Sketcher.Constraint("Coincident", 0, 2, 1, 1),
    Sketcher.Constraint("Coincident", 1, 2, 2, 1),
    Sketcher.Constraint("Coincident", 2, 2, 0, 1),
    Sketcher.Constraint("Horizontal", 0),
    Sketcher.Constraint("Vertical", 1),
    Sketcher.Constraint("Equal", 0, 1),
    Sketcher.Constraint("DistanceX", 0, 1, 0, 2, 28.5),
    Sketcher.Constraint("DistanceY", -1, 1, 0, 2, 140.0),
    Sketcher.Constraint("DistanceX", -1, 1, 2, 2, 229.0),
])
pad22 = body22.newObject("PartDesign::Pad", "Pad021")
pad22.Profile = sketch22
pad22.Length = 20
body23 = doc.addObject("PartDesign::Body", "Body022")

# Sketch on XY plane
sketch23 = body23.newObject("Sketcher::SketchObject", "Sketch022")
sketch23.AttachmentSupport = (doc.getObject("XY_Plane022"), [""])
sketch23.MapMode = "FlatFace"
sketch23.AttachmentOffset = App.Placement(App.Vector(0, 0, -121.25), App.Rotation())
sketch23.addGeometry([
    Part.LineSegment(App.Vector(134, 8, 0), App.Vector(134, -8, 0)),  # 0
    Part.LineSegment(App.Vector(134, -8, 0), App.Vector(90, -8, 0)),  # 1
    Part.LineSegment(App.Vector(90, -8, 0), App.Vector(90, -52, 0)),  # 2
    Part.LineSegment(App.Vector(90, -52, 0), App.Vector(74, -52, 0)),  # 3
    Part.LineSegment(App.Vector(74, -52, 0), App.Vector(74, 8, 0)),  # 4
    Part.LineSegment(App.Vector(74, 8, 0), App.Vector(134, 8, 0)),  # 5
], False)
sketch23.addConstraint([
    Sketcher.Constraint("Coincident", 0, 2, 1, 1),
    Sketcher.Constraint("Coincident", 1, 2, 2, 1),
    Sketcher.Constraint("Coincident", 2, 2, 3, 1),
    Sketcher.Constraint("Coincident", 3, 2, 4, 1),
    Sketcher.Constraint("Coincident", 4, 2, 5, 1),
    Sketcher.Constraint("Coincident", 5, 2, 0, 1),
    Sketcher.Constraint("Vertical", 0),
    Sketcher.Constraint("Horizontal", 1),
    Sketcher.Constraint("Vertical", 2),
    Sketcher.Constraint("Horizontal", 3),
    Sketcher.Constraint("Vertical", 4),
    Sketcher.Constraint("Horizontal", 5),
    Sketcher.Constraint("Equal", 3, 0),
    Sketcher.Constraint("Equal", 1, 2),
    Sketcher.Constraint("DistanceX", 1, 2, 1, 1, 44.0),
    Sketcher.Constraint("DistanceX", 3, 2, 3, 1, 16.0),
    Sketcher.Constraint("DistanceY", 0, 2, -1, 1, 8.0),
    Sketcher.Constraint("DistanceX", -1, 1, 0, 2, 133.75),
])
pad23 = body23.newObject("PartDesign::Pad", "Pad022")
pad23.Profile = sketch23
pad23.Length = 2
pad23.Reversed = True
body24 = doc.addObject("PartDesign::Body", "Body023")

# Sketch on XY plane
sketch24 = body24.newObject("Sketcher::SketchObject", "Sketch023")
sketch24.AttachmentSupport = (doc.getObject("XY_Plane023"), [""])
sketch24.MapMode = "FlatFace"
sketch24.AttachmentOffset = App.Placement(App.Vector(0, 0, -121.25), App.Rotation())
sketch24.addGeometry([
    Part.LineSegment(App.Vector(134, 8, 0), App.Vector(194, 8, 0)),  # 0
    Part.LineSegment(App.Vector(194, 8, 0), App.Vector(194, -52, 0)),  # 1
    Part.LineSegment(App.Vector(194, -52, 0), App.Vector(178, -52, 0)),  # 2
    Part.LineSegment(App.Vector(178, -52, 0), App.Vector(178, -8, 0)),  # 3
    Part.LineSegment(App.Vector(178, -8, 0), App.Vector(134, -8, 0)),  # 4
    Part.LineSegment(App.Vector(134, -8, 0), App.Vector(134, 8, 0)),  # 5
], False)
sketch24.addConstraint([
    Sketcher.Constraint("Coincident", 0, 2, 1, 1),
    Sketcher.Constraint("Coincident", 1, 2, 2, 1),
    Sketcher.Constraint("Coincident", 2, 2, 3, 1),
    Sketcher.Constraint("Coincident", 3, 2, 4, 1),
    Sketcher.Constraint("Coincident", 4, 2, 5, 1),
    Sketcher.Constraint("Coincident", 5, 2, 0, 1),
    Sketcher.Constraint("Horizontal", 0),
    Sketcher.Constraint("Vertical", 1),
    Sketcher.Constraint("Horizontal", 2),
    Sketcher.Constraint("Vertical", 3),
    Sketcher.Constraint("Horizontal", 4),
    Sketcher.Constraint("Vertical", 5),
    Sketcher.Constraint("Equal", 0, 1),
    Sketcher.Constraint("Equal", 4, 3),
    Sketcher.Constraint("DistanceX", 0, 1, 0, 2, 60.0),
    Sketcher.Constraint("DistanceX", 2, 2, 2, 1, 16.0),
    Sketcher.Constraint("DistanceY", -1, 1, 0, 2, 8.0),
    Sketcher.Constraint("DistanceX", -1, 1, 0, 2, 193.75),
])
pad24 = body24.newObject("PartDesign::Pad", "Pad023")
pad24.Profile = sketch24
pad24.Length = 2
pad24.Reversed = True
body25 = doc.addObject("PartDesign::Body", "Body024")

# Sketch on XY plane
sketch25 = body25.newObject("Sketcher::SketchObject", "Sketch024")
sketch25.AttachmentSupport = (doc.getObject("XY_Plane024"), [""])
sketch25.MapMode = "FlatFace"
sketch25.AttachmentOffset = App.Placement(App.Vector(0, 0, 121.25), App.Rotation())
sketch25.addGeometry([
    Part.LineSegment(App.Vector(134, 8, 0), App.Vector(134, -8, 0)),  # 0
    Part.LineSegment(App.Vector(134, -8, 0), App.Vector(178, -8, 0)),  # 1
    Part.LineSegment(App.Vector(178, -8, 0), App.Vector(178, -52, 0)),  # 2
    Part.LineSegment(App.Vector(178, -52, 0), App.Vector(194, -52, 0)),  # 3
    Part.LineSegment(App.Vector(194, -52, 0), App.Vector(194, 8, 0)),  # 4
    Part.LineSegment(App.Vector(194, 8, 0), App.Vector(134, 8, 0)),  # 5
], False)
sketch25.addConstraint([
    Sketcher.Constraint("Coincident", 0, 2, 1, 1),
    Sketcher.Constraint("Coincident", 1, 2, 2, 1),
    Sketcher.Constraint("Coincident", 2, 2, 3, 1),
    Sketcher.Constraint("Coincident", 3, 2, 4, 1),
    Sketcher.Constraint("Coincident", 4, 2, 5, 1),
    Sketcher.Constraint("Coincident", 5, 2, 0, 1),
    Sketcher.Constraint("Vertical", 0),
    Sketcher.Constraint("Horizontal", 1),
    Sketcher.Constraint("Vertical", 2),
    Sketcher.Constraint("Horizontal", 3),
    Sketcher.Constraint("Vertical", 4),
    Sketcher.Constraint("Horizontal", 5),
    Sketcher.Constraint("Equal", 3, 0),
    Sketcher.Constraint("Equal", 1, 2),
    Sketcher.Constraint("DistanceX", 1, 1, 1, 2, 44.0),
    Sketcher.Constraint("DistanceX", 3, 1, 3, 2, 16.0),
    Sketcher.Constraint("DistanceY", 0, 2, -1, 1, 8.0),
    Sketcher.Constraint("DistanceX", -1, 1, 0, 2, 133.75),
])
pad25 = body25.newObject("PartDesign::Pad", "Pad024")
pad25.Profile = sketch25
pad25.Length = 2
body26 = doc.addObject("PartDesign::Body", "Body025")

# Sketch on XY plane
sketch26 = body26.newObject("Sketcher::SketchObject", "Sketch025")
sketch26.AttachmentSupport = (doc.getObject("XY_Plane025"), [""])
sketch26.MapMode = "FlatFace"
sketch26.AttachmentOffset = App.Placement(App.Vector(0, 0, 121.25), App.Rotation())
sketch26.addGeometry([
    Part.LineSegment(App.Vector(74, 8, 0), App.Vector(74, -52, 0)),  # 0
    Part.LineSegment(App.Vector(74, -52, 0), App.Vector(90, -52, 0)),  # 1
    Part.LineSegment(App.Vector(90, -52, 0), App.Vector(90, -8, 0)),  # 2
    Part.LineSegment(App.Vector(90, -8, 0), App.Vector(134, -8, 0)),  # 3
    Part.LineSegment(App.Vector(134, -8, 0), App.Vector(134, 8, 0)),  # 4
    Part.LineSegment(App.Vector(134, 8, 0), App.Vector(74, 8, 0)),  # 5
], False)
sketch26.addConstraint([
    Sketcher.Constraint("Coincident", 0, 2, 1, 1),
    Sketcher.Constraint("Coincident", 1, 2, 2, 1),
    Sketcher.Constraint("Coincident", 2, 2, 3, 1),
    Sketcher.Constraint("Coincident", 3, 2, 4, 1),
    Sketcher.Constraint("Coincident", 4, 2, 5, 1),
    Sketcher.Constraint("Coincident", 5, 2, 0, 1),
    Sketcher.Constraint("Vertical", 0),
    Sketcher.Constraint("Horizontal", 1),
    Sketcher.Constraint("Vertical", 2),
    Sketcher.Constraint("Horizontal", 3),
    Sketcher.Constraint("Vertical", 4),
    Sketcher.Constraint("Horizontal", 5),
    Sketcher.Constraint("Equal", 5, 0),
    Sketcher.Constraint("Equal", 3, 2),
    Sketcher.Constraint("DistanceX", 1, 1, 1, 2, 16.0),
    Sketcher.Constraint("DistanceX", 3, 1, 3, 2, 44.0),
    Sketcher.Constraint("DistanceY", 0, 2, -1, 1, 52.0),
    Sketcher.Constraint("DistanceX", -1, 1, 0, 2, 73.75),
])
pad26 = body26.newObject("PartDesign::Pad", "Pad025")
pad26.Profile = sketch26
pad26.Length = 2

doc.recompute()
